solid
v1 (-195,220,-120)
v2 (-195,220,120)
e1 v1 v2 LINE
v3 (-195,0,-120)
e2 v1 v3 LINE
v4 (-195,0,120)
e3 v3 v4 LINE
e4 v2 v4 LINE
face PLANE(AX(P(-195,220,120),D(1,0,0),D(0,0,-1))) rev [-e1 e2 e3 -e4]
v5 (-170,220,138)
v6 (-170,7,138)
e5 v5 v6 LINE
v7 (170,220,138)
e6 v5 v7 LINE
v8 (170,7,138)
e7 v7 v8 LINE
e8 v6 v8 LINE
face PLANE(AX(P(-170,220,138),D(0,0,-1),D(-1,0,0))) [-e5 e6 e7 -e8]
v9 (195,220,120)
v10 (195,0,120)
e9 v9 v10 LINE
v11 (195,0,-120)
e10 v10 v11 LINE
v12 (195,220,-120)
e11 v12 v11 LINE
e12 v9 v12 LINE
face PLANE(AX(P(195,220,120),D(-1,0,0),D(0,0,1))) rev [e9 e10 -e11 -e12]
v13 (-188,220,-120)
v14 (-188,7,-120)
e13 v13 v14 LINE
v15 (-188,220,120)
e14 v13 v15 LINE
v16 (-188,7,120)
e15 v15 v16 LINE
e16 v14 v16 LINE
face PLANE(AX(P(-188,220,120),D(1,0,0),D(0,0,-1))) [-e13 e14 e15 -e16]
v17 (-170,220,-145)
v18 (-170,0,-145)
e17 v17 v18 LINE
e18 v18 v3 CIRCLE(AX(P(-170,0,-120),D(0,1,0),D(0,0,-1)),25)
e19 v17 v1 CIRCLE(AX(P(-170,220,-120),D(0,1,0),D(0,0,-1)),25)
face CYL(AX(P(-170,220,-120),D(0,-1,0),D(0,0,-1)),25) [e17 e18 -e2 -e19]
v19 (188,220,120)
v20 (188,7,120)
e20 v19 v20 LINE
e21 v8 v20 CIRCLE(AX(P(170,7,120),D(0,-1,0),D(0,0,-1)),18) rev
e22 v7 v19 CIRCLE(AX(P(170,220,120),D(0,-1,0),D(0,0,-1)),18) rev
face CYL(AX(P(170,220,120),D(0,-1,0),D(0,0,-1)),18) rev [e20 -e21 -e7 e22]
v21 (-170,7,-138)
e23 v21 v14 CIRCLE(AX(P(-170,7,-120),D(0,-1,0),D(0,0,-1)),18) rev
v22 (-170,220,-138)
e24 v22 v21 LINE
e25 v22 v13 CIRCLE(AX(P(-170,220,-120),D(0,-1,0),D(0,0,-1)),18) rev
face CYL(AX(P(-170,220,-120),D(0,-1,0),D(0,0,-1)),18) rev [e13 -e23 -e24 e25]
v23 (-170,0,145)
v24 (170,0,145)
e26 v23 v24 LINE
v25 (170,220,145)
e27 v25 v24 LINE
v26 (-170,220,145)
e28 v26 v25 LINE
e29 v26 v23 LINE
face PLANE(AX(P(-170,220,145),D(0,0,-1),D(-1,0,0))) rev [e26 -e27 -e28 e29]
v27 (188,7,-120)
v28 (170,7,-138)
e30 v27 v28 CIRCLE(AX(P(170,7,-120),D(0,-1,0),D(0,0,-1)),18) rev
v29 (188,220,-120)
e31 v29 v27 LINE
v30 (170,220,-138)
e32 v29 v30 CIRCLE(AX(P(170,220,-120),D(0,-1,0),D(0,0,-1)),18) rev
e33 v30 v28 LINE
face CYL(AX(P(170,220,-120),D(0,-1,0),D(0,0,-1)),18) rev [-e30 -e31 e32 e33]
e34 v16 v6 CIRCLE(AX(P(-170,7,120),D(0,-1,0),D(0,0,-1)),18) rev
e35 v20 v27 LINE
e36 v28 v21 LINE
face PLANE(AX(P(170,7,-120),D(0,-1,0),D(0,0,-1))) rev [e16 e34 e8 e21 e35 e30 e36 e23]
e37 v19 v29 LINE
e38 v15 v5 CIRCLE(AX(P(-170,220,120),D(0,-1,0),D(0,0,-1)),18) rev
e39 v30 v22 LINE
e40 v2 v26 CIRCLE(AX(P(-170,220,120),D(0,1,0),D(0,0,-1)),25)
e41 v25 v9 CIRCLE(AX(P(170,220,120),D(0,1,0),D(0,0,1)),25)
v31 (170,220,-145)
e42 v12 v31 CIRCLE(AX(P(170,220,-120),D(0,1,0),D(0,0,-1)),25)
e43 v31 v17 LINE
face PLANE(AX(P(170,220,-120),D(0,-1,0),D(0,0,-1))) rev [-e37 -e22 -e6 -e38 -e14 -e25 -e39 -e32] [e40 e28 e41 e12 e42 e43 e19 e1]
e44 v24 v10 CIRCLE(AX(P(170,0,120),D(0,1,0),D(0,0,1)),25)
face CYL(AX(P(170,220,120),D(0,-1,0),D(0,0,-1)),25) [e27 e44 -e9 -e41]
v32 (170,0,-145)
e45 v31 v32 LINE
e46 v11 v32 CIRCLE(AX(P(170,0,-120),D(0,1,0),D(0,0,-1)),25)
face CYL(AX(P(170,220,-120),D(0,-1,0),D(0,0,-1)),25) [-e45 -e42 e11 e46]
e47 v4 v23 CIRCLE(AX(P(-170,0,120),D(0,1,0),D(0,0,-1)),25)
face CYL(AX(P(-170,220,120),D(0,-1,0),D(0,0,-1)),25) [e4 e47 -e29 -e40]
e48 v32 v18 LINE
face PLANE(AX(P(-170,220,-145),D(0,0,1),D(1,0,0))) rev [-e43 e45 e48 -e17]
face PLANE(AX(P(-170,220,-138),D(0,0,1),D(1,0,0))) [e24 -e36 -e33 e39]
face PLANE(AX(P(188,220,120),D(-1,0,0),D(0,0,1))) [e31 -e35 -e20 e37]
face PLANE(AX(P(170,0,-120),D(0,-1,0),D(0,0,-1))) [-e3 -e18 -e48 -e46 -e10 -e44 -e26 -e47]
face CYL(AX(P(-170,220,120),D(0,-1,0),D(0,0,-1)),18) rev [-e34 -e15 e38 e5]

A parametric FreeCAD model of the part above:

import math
import FreeCAD as App
import Part
import Sketcher


def faces_at(feature, points):
    """Names of the faces that lie closest to the given points."""
    faces = feature.Shape.Faces
    near = lambda p: min(range(len(faces)), key=lambda i: faces[i].distToShape(Part.Vertex(*p))[0])
    return sorted({f"Face{near(p) + 1}" for p in points})

doc = App.newDocument("Part")
body = doc.addObject("PartDesign::Body", "Body")

# Sketch on XZ plane
sketch1 = body.newObject("Sketcher::SketchObject", "Sketch")
sketch1.AttachmentSupport = (doc.getObject("XZ_Plane"), [""])
sketch1.MapMode = "FlatFace"
sketch1.addGeometry([
    Part.LineSegment(App.Vector(-170, 145, 0), App.Vector(170, 145, 0)),  # 0
    Part.ArcOfCircle(Part.Circle(App.Vector(170, 120, 0), App.Vector(0, 0, 1), 25), math.radians(0), math.radians(90)),  # 1
    Part.LineSegment(App.Vector(195, 120, 0), App.Vector(195, -120, 0)),  # 2
    Part.ArcOfCircle(Part.Circle(App.Vector(170, -120, 0), App.Vector(0, 0, 1), 25), math.radians(-90), math.radians(0)),  # 3
    Part.LineSegment(App.Vector(170, -145, 0), App.Vector(-170, -145, 0)),  # 4
    Part.ArcOfCircle(Part.Circle(App.Vector(-170, -120, 0), App.Vector(0, 0, 1), 25), math.radians(180), math.radians(270)),  # 5
    Part.LineSegment(App.Vector(-195, -120, 0), App.Vector(-195, 120, 0)),  # 6
    Part.ArcOfCircle(Part.Circle(App.Vector(-170, 120, 0), App.Vector(0, 0, 1), 25), math.radians(90), math.radians(180)),  # 7
], False)
sketch1.addConstraint([
    Sketcher.Constraint("Tangent", 0, 2, 1, 2),
    Sketcher.Constraint("Tangent", 1, 1, 2, 1),
    Sketcher.Constraint("Tangent", 2, 2, 3, 2),
    Sketcher.Constraint("Tangent", 3, 1, 4, 1),
    Sketcher.Constraint("Tangent", 4, 2, 5, 2),
    Sketcher.Constraint("Tangent", 5, 1, 6, 1),
    Sketcher.Constraint("Tangent", 6, 2, 7, 2),
    Sketcher.Constraint("Tangent", 7, 1, 0, 1),
    Sketcher.Constraint("Horizontal", 0),
    Sketcher.Constraint("Vertical", 2),
    Sketcher.Constraint("Horizontal", 4),
    Sketcher.Constraint("Vertical", 6),
    Sketcher.Constraint("Equal", 1, 3),
    Sketcher.Constraint("Equal", 3, 5),
    Sketcher.Constraint("Equal", 5, 7),
    Sketcher.Constraint("Symmetric", 1, 3, 5, 3, -1, 1),
    Sketcher.Constraint("Radius", 1, 25.0),
    Sketcher.Constraint("DistanceX", 0, 1, 0, 2, 340.0),
    Sketcher.Constraint("DistanceY", 2, 2, 2, 1, 240.0),
])
pad1 = body.newObject("PartDesign::Pad", "Pad")
pad1.Profile = sketch1
pad1.Length = 220
pad1.Reversed = True
doc.recompute()

thickness = body.newObject("PartDesign::Thickness", "Thickness")
thickness.Base = (pad1, faces_at(pad1, [(0, 220, 0)]))
thickness.Value = 7
thickness.Reversed = True
thickness.Join = "Intersection"

doc.recompute()
